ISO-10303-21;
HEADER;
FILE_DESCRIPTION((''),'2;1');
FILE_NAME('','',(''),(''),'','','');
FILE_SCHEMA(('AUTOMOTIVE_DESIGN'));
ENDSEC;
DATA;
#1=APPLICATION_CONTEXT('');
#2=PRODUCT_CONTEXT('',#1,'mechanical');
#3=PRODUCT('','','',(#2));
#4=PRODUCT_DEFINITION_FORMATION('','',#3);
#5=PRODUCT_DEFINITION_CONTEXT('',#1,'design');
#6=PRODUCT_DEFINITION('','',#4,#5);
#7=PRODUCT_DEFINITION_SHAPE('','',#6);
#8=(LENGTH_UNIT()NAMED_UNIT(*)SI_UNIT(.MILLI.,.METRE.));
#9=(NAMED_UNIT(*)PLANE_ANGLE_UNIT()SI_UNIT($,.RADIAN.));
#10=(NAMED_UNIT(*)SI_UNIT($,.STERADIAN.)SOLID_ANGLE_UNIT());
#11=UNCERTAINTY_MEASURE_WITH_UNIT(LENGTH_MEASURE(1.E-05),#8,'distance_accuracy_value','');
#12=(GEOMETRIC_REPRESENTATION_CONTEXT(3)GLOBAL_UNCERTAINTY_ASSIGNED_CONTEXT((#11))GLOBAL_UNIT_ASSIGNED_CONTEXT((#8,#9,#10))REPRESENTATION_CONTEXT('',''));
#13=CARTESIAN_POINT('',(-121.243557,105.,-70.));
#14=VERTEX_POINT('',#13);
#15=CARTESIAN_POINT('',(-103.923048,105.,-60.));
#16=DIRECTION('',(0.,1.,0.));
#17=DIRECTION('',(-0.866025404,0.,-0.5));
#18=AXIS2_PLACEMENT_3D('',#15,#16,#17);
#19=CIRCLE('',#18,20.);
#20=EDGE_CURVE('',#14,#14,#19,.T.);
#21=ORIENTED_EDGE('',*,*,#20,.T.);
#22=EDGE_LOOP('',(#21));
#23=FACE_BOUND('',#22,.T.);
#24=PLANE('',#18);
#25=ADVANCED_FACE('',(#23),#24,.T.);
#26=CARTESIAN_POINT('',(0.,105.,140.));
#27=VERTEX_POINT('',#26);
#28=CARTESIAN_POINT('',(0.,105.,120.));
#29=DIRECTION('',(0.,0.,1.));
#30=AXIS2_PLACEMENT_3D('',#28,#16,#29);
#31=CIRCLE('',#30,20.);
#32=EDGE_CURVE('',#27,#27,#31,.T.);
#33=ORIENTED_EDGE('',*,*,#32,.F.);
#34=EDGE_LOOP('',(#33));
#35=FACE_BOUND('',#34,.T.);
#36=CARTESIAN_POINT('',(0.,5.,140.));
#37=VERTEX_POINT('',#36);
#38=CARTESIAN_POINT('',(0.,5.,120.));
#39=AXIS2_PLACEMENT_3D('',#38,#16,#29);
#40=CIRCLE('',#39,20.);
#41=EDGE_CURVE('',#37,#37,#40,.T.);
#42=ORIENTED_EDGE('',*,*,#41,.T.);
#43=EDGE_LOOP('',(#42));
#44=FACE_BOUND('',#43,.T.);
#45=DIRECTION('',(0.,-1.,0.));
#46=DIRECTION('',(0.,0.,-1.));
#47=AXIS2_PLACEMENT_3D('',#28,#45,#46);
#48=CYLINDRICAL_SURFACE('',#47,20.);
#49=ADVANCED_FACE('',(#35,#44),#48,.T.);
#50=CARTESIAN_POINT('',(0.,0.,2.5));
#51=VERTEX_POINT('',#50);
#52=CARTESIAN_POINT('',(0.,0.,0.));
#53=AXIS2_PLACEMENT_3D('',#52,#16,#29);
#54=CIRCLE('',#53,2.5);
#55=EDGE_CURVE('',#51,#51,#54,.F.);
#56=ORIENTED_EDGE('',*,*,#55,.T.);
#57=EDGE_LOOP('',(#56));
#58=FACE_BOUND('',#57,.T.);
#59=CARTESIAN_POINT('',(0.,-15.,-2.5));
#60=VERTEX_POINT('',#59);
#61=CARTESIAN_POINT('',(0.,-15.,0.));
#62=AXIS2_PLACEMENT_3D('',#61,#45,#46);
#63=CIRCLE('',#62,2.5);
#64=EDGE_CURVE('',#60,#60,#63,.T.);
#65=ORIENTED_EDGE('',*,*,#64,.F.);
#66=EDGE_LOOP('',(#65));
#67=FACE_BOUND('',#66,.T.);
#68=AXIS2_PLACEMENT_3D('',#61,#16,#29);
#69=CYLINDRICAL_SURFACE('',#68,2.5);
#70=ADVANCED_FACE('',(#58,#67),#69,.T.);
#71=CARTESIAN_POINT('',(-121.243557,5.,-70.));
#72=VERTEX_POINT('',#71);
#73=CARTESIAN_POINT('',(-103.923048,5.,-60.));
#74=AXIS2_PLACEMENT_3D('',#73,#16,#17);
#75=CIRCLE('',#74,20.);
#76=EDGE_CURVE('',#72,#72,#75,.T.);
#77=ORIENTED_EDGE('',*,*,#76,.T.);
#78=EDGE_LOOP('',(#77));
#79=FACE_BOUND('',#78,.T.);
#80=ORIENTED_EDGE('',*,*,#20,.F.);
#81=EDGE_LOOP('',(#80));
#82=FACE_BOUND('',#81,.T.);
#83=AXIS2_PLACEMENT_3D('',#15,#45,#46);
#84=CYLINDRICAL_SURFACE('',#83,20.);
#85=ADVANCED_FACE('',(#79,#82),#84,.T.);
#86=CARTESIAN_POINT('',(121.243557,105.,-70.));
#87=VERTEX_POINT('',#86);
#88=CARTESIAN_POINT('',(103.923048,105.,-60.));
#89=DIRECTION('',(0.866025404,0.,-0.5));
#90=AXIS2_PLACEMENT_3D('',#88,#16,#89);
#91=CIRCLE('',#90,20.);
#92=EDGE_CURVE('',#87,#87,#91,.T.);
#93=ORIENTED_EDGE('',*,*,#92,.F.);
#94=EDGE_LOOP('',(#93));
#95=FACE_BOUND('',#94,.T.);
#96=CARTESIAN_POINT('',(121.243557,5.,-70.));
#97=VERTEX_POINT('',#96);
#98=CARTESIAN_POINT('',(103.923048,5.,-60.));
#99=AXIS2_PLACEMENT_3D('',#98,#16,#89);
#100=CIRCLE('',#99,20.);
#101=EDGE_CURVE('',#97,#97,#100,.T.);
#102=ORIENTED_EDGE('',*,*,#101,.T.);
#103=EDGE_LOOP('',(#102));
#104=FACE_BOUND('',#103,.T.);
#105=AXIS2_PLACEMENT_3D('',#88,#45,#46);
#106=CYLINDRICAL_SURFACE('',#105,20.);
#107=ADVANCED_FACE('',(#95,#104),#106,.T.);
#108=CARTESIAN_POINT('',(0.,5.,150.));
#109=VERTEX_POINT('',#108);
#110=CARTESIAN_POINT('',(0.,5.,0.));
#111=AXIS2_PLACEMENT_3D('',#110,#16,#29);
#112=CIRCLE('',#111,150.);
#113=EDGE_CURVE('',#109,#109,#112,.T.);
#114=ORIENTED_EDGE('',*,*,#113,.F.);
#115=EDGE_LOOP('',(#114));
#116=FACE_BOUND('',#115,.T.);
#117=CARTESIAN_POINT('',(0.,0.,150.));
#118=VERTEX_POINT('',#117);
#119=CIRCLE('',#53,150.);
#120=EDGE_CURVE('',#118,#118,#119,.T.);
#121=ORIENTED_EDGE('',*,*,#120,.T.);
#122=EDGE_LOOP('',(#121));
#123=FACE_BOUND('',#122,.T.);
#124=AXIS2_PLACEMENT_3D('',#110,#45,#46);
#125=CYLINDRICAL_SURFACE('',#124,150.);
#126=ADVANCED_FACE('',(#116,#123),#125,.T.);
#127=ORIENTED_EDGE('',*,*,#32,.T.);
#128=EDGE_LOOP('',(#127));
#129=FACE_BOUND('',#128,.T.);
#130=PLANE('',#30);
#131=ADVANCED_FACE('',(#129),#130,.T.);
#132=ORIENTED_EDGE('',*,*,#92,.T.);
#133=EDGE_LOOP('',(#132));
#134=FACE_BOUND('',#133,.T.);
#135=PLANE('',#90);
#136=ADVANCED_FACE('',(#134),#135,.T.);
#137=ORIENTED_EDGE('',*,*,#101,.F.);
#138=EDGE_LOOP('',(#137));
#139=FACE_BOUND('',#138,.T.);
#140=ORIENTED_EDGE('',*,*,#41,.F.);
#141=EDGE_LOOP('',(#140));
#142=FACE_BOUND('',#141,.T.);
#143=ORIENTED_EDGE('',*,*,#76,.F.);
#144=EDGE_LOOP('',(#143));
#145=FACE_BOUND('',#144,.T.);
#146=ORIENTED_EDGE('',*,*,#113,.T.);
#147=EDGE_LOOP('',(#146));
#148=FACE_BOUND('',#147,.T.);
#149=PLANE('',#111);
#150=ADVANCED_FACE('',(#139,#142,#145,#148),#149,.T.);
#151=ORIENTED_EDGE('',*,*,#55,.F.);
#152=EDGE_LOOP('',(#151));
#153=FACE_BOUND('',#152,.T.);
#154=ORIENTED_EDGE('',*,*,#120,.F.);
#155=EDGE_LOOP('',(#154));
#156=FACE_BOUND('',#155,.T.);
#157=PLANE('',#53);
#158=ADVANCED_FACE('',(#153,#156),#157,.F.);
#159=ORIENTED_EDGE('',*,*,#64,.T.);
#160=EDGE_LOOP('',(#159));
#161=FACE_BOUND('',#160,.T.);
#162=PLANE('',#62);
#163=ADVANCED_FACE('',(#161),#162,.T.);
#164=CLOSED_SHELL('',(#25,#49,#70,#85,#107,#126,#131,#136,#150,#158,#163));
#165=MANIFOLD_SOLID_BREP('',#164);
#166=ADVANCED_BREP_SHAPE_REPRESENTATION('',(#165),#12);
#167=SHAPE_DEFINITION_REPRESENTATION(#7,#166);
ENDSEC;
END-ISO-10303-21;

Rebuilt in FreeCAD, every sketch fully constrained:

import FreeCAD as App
import Part
import Sketcher

doc = App.newDocument("Part")
body = doc.addObject("PartDesign::Body", "Body")

# Sketch on XZ plane
sketch1 = body.newObject("Sketcher::SketchObject", "Sketch")
sketch1.AttachmentSupport = (doc.getObject("XZ_Plane"), [""])
sketch1.MapMode = "FlatFace"
sketch1.addGeometry(Part.Circle(App.Vector(0, 0, 0), App.Vector(0, 0, 1), 150), False)
sketch1.addConstraint(Sketcher.Constraint("Coincident", 0, 3, -1, 1))
sketch1.addConstraint(Sketcher.Constraint("Diameter", 0, 300.0))
pad1 = body.newObject("PartDesign::Pad", "Pad")
pad1.Profile = sketch1
pad1.Length = 5
pad1.Reversed = True

# Sketch on XZ plane
sketch2 = body.newObject("Sketcher::SketchObject", "Sketch001")
sketch2.AttachmentSupport = (doc.getObject("XZ_Plane"), [""])
sketch2.MapMode = "FlatFace"
sketch2.AttachmentOffset = App.Placement(App.Vector(0, 0, -5), App.Rotation())
sketch2.addGeometry(Part.Circle(App.Vector(0, 120, 0), App.Vector(0, 0, 1), 20), False)
sketch2.addConstraint(Sketcher.Constraint("PointOnObject", 0, 3, -2))
sketch2.addConstraint(Sketcher.Constraint("Diameter", 0, 40.0))
sketch2.addConstraint(Sketcher.Constraint("DistanceY", -1, 1, 0, 3, 120.0))
pad2 = body.newObject("PartDesign::Pad", "Pad001")
pad2.Profile = sketch2
pad2.Length = 100
pad2.Reversed = True
doc.recompute()

polarpattern = body.newObject("PartDesign::PolarPattern", "PolarPattern")
polarpattern.Originals = [pad2]
polarpattern.Axis = (doc.getObject("Y_Axis"), [""])
polarpattern.Angle = 360
polarpattern.Occurrences = 3
body.Tip = polarpattern

# Sketch on XZ plane
sketch3 = body.newObject("Sketcher::SketchObject", "Sketch002")
sketch3.AttachmentSupport = (doc.getObject("XZ_Plane"), [""])
sketch3.MapMode = "FlatFace"
sketch3.addGeometry(Part.Circle(App.Vector(0, 0, 0), App.Vector(0, 0, 1), 2.5), False)
sketch3.addConstraint(Sketcher.Constraint("Coincident", 0, 3, -1, 1))
sketch3.addConstraint(Sketcher.Constraint("Diameter", 0, 5.0))
pad3 = body.newObject("PartDesign::Pad", "Pad002")
pad3.Profile = sketch3
pad3.Length = 15

doc.recompute()
